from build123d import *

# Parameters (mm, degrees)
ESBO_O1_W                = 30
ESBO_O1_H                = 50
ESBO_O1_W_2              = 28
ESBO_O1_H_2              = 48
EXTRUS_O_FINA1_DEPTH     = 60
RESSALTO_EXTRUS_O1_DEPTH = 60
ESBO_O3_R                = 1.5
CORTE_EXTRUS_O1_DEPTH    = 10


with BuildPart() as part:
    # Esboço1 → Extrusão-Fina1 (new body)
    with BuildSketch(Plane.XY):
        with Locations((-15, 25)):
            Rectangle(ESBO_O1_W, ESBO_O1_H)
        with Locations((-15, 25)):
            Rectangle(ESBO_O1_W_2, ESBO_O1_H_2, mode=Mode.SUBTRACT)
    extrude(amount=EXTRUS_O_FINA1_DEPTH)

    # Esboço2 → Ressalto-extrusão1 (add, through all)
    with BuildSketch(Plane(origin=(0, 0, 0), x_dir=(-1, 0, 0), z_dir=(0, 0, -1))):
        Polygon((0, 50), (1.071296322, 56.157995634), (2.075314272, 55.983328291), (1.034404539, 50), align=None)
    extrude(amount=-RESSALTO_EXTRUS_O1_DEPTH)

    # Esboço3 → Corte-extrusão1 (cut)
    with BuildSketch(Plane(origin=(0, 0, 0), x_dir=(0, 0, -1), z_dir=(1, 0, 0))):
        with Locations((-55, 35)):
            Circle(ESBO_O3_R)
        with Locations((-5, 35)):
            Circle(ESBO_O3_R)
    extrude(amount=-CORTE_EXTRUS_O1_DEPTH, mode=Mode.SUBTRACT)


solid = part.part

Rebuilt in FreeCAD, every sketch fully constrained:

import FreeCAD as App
import Part
import Sketcher


def add_polygon(sketch, points):
    """Adds a closed chain of lines whose ends are joined by coincident constraints."""
    first, n = sketch.GeometryCount, len(points)
    for a, b in zip(points, points[1:] + points[:1]):
        sketch.addGeometry(Part.LineSegment(App.Vector(*a, 0), App.Vector(*b, 0)), False)
    for i in range(n):
        sketch.addConstraint(Sketcher.Constraint("Coincident", first + i, 2, first + (i + 1) % n, 1))

doc = App.newDocument("Part")
params = doc.addObject("Spreadsheet::Sheet", "Params")
for row, (alias, value) in enumerate([
    ("sketch1_width", "30 mm"),
    ("sketch1_width2", "28 mm"),
    ("sketch1_height", "50 mm"),
    ("sketch1_height2", "48 mm"),
    ("pad1_length", "60 mm"),
    ("pad2_length", "60 mm"),
    ("sketch3_diameter", "3 mm"),
    ("pocket1_length", "10 mm"),
], start=1):
    params.set(f"A{row}", alias)
    params.set(f"B{row}", "=" + value)
    params.setAlias(f"B{row}", alias)

body = doc.addObject("PartDesign::Body", "Body")

# Sketch on XY plane
sketch1 = body.newObject("Sketcher::SketchObject", "Sketch")
sketch1.AttachmentSupport = (doc.getObject("XY_Plane"), [""])
sketch1.MapMode = "FlatFace"
add_polygon(sketch1, [(-30, 50), (-30, 0), (0, 0), (0, 50)])  # lines 0-3
add_polygon(sketch1, [(-1, 1), (-29, 1), (-29, 49), (-1, 49)])  # lines 4-7
sketch1.addConstraint(Sketcher.Constraint("Vertical", 0))
sketch1.addConstraint(Sketcher.Constraint("Horizontal", 1))
sketch1.addConstraint(Sketcher.Constraint("Vertical", 2))
sketch1.addConstraint(Sketcher.Constraint("Horizontal", 3))
sketch1.addConstraint(Sketcher.Constraint("Horizontal", 4))
sketch1.addConstraint(Sketcher.Constraint("Vertical", 5))
sketch1.addConstraint(Sketcher.Constraint("Horizontal", 6))
sketch1.addConstraint(Sketcher.Constraint("Vertical", 7))
sketch1.addConstraint(Sketcher.Constraint("Coincident", 1, 2, -1, 1))
sketch1.addConstraint(Sketcher.Constraint("DistanceX", 1, 1, 1, 2, 30.0))
sketch1.addConstraint(Sketcher.Constraint("DistanceX", 4, 2, 4, 1, 28.0))
sketch1.addConstraint(Sketcher.Constraint("DistanceY", 0, 2, 0, 1, 50.0))
sketch1.addConstraint(Sketcher.Constraint("DistanceY", 5, 1, 5, 2, 48.0))
sketch1.addConstraint(Sketcher.Constraint("DistanceX", 4, 2, -1, 1, 29.0))
sketch1.addConstraint(Sketcher.Constraint("DistanceY", -1, 1, 4, 2, 1.0))
sketch1.setExpression("Constraints[17]", "Params.sketch1_width")
sketch1.setExpression("Constraints[18]", "Params.sketch1_width2")
sketch1.setExpression("Constraints[19]", "Params.sketch1_height")
sketch1.setExpression("Constraints[20]", "Params.sketch1_height2")
pad1 = body.newObject("PartDesign::Pad", "Pad")
pad1.Profile = sketch1
pad1.setExpression("Length", "Params.pad1_length")

# Sketch on XY plane
sketch2 = body.newObject("Sketcher::SketchObject", "Sketch001")
sketch2.AttachmentSupport = (doc.getObject("XY_Plane"), [""])
sketch2.MapMode = "FlatFace"
add_polygon(sketch2, [(-1.071296, 56.157996), (0, 50), (-1.034405, 50), (-2.075314, 55.983328)])  # lines 0-3
sketch2.addConstraint(Sketcher.Constraint("Horizontal", 1))
sketch2.addConstraint(Sketcher.Constraint("PointOnObject", 0, 2, -2))
sketch2.addConstraint(Sketcher.Constraint("Parallel", 0, 2))
sketch2.addConstraint(Sketcher.Constraint("Perpendicular", 2, 3))
sketch2.addConstraint(Sketcher.Constraint("DistanceY", -1, 1, 0, 2, 50.0))
sketch2.addConstraint(Sketcher.Constraint("DistanceX", 1, 2, 1, 1, 1.034405))
sketch2.addConstraint(Sketcher.Constraint("DistanceY", -1, 1, 2, 2, 55.983328))
sketch2.addConstraint(Sketcher.Constraint("DistanceX", 2, 2, 1, 2, 1.04091))
pad2 = body.newObject("PartDesign::Pad", "Pad001")
pad2.Profile = sketch2
pad2.setExpression("Length", "Params.pad2_length")

# Sketch on YZ plane
sketch3 = body.newObject("Sketcher::SketchObject", "Sketch002")
sketch3.AttachmentSupport = (doc.getObject("YZ_Plane"), [""])
sketch3.MapMode = "FlatFace"
sketch3.addGeometry(Part.Circle(App.Vector(35, 55, 0), App.Vector(0, 0, 1), 1.5), False)
sketch3.addGeometry(Part.Circle(App.Vector(35, 5, 0), App.Vector(0, 0, 1), 1.5), False)
sketch3.addConstraint(Sketcher.Constraint("Equal", 0, 1))
sketch3.addConstraint(Sketcher.Constraint("Vertical", 0, 3, 1, 3))
sketch3.addConstraint(Sketcher.Constraint("Diameter", 0, 3.0))
sketch3.addConstraint(Sketcher.Constraint("DistanceX", -1, 1, 0, 3, 35.0))
sketch3.addConstraint(Sketcher.Constraint("DistanceY", -1, 1, 0, 3, 55.0))
sketch3.addConstraint(Sketcher.Constraint("DistanceY", -1, 1, 1, 3, 5.0))
sketch3.setExpression("Constraints[2]", "Params.sketch3_diameter")
pocket1 = body.newObject("PartDesign::Pocket", "Pocket")
pocket1.Profile = sketch3
pocket1.setExpression("Length", "Params.pocket1_length")

doc.recompute()
